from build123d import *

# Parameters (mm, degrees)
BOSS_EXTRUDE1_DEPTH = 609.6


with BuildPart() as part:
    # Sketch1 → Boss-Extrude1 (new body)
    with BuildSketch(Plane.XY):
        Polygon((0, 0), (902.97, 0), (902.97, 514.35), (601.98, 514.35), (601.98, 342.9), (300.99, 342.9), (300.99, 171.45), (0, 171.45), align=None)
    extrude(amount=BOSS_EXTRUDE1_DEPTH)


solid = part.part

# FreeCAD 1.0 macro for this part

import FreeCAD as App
import Part
import Sketcher

V = App.Vector
Q = App.Units.Quantity

doc = App.newDocument("Part")
body = doc.addObject("PartDesign::Body", "Body")

sketch1 = body.newObject("Sketcher::SketchObject", "Sketch")
sketch1.AttachmentSupport = (doc.getObject("XY_Plane"), [""])
sketch1.MapMode = "FlatFace"
sketch1.addGeometry(Part.LineSegment(V(0, 0, 0), V(903, 0, 0)), False)
sketch1.addGeometry(Part.LineSegment(V(903, 0, 0), V(903, 514, 0)), False)
sketch1.addGeometry(Part.LineSegment(V(903, 514, 0), V(602, 514, 0)), False)
sketch1.addGeometry(Part.LineSegment(V(602, 514, 0), V(602, 343, 0)), False)
sketch1.addGeometry(Part.LineSegment(V(602, 343, 0), V(301, 343, 0)), False)
sketch1.addGeometry(Part.LineSegment(V(301, 343, 0), V(301, 171, 0)), False)
sketch1.addGeometry(Part.LineSegment(V(301, 171, 0), V(0, 171, 0)), False)
sketch1.addGeometry(Part.LineSegment(V(0, 171, 0), V(0, 0, 0)), False)
sketch1.addConstraint(Sketcher.Constraint("Coincident", 0, 2, 1, 1))
sketch1.addConstraint(Sketcher.Constraint("Coincident", 1, 2, 2, 1))
sketch1.addConstraint(Sketcher.Constraint("Coincident", 2, 2, 3, 1))
sketch1.addConstraint(Sketcher.Constraint("Coincident", 3, 2, 4, 1))
sketch1.addConstraint(Sketcher.Constraint("Coincident", 4, 2, 5, 1))
sketch1.addConstraint(Sketcher.Constraint("Coincident", 5, 2, 6, 1))
sketch1.addConstraint(Sketcher.Constraint("Coincident", 6, 2, 7, 1))
sketch1.addConstraint(Sketcher.Constraint("Coincident", 7, 2, 0, 1))
sketch1.addConstraint(Sketcher.Constraint("Horizontal", 0))
sketch1.addConstraint(Sketcher.Constraint("Vertical", 1))
sketch1.addConstraint(Sketcher.Constraint("Horizontal", 2))
sketch1.addConstraint(Sketcher.Constraint("Vertical", 3))
sketch1.addConstraint(Sketcher.Constraint("Horizontal", 4))
sketch1.addConstraint(Sketcher.Constraint("Vertical", 5))
sketch1.addConstraint(Sketcher.Constraint("Horizontal", 6))
sketch1.addConstraint(Sketcher.Constraint("Vertical", 7))
sketch1.addConstraint(Sketcher.Constraint("Coincident", 7, 2, -1, 1))
sketch1.addConstraint(Sketcher.Constraint("Equal", 2, 4))
sketch1.addConstraint(Sketcher.Constraint("Equal", 4, 6))
sketch1.addConstraint(Sketcher.Constraint("Equal", 3, 5))
sketch1.addConstraint(Sketcher.Constraint("Equal", 5, 7))
sketch1.addConstraint(Sketcher.Constraint("DistanceX", 0, 1, 0, 2, Q("35.55 in")))
sketch1.addConstraint(Sketcher.Constraint("DistanceY", 1, 1, 1, 2, Q("20.25 in")))
pad1 = body.newObject("PartDesign::Pad", "Pad")
pad1.Profile = sketch1
pad1.Length = Q("24 in")

doc.recompute()
